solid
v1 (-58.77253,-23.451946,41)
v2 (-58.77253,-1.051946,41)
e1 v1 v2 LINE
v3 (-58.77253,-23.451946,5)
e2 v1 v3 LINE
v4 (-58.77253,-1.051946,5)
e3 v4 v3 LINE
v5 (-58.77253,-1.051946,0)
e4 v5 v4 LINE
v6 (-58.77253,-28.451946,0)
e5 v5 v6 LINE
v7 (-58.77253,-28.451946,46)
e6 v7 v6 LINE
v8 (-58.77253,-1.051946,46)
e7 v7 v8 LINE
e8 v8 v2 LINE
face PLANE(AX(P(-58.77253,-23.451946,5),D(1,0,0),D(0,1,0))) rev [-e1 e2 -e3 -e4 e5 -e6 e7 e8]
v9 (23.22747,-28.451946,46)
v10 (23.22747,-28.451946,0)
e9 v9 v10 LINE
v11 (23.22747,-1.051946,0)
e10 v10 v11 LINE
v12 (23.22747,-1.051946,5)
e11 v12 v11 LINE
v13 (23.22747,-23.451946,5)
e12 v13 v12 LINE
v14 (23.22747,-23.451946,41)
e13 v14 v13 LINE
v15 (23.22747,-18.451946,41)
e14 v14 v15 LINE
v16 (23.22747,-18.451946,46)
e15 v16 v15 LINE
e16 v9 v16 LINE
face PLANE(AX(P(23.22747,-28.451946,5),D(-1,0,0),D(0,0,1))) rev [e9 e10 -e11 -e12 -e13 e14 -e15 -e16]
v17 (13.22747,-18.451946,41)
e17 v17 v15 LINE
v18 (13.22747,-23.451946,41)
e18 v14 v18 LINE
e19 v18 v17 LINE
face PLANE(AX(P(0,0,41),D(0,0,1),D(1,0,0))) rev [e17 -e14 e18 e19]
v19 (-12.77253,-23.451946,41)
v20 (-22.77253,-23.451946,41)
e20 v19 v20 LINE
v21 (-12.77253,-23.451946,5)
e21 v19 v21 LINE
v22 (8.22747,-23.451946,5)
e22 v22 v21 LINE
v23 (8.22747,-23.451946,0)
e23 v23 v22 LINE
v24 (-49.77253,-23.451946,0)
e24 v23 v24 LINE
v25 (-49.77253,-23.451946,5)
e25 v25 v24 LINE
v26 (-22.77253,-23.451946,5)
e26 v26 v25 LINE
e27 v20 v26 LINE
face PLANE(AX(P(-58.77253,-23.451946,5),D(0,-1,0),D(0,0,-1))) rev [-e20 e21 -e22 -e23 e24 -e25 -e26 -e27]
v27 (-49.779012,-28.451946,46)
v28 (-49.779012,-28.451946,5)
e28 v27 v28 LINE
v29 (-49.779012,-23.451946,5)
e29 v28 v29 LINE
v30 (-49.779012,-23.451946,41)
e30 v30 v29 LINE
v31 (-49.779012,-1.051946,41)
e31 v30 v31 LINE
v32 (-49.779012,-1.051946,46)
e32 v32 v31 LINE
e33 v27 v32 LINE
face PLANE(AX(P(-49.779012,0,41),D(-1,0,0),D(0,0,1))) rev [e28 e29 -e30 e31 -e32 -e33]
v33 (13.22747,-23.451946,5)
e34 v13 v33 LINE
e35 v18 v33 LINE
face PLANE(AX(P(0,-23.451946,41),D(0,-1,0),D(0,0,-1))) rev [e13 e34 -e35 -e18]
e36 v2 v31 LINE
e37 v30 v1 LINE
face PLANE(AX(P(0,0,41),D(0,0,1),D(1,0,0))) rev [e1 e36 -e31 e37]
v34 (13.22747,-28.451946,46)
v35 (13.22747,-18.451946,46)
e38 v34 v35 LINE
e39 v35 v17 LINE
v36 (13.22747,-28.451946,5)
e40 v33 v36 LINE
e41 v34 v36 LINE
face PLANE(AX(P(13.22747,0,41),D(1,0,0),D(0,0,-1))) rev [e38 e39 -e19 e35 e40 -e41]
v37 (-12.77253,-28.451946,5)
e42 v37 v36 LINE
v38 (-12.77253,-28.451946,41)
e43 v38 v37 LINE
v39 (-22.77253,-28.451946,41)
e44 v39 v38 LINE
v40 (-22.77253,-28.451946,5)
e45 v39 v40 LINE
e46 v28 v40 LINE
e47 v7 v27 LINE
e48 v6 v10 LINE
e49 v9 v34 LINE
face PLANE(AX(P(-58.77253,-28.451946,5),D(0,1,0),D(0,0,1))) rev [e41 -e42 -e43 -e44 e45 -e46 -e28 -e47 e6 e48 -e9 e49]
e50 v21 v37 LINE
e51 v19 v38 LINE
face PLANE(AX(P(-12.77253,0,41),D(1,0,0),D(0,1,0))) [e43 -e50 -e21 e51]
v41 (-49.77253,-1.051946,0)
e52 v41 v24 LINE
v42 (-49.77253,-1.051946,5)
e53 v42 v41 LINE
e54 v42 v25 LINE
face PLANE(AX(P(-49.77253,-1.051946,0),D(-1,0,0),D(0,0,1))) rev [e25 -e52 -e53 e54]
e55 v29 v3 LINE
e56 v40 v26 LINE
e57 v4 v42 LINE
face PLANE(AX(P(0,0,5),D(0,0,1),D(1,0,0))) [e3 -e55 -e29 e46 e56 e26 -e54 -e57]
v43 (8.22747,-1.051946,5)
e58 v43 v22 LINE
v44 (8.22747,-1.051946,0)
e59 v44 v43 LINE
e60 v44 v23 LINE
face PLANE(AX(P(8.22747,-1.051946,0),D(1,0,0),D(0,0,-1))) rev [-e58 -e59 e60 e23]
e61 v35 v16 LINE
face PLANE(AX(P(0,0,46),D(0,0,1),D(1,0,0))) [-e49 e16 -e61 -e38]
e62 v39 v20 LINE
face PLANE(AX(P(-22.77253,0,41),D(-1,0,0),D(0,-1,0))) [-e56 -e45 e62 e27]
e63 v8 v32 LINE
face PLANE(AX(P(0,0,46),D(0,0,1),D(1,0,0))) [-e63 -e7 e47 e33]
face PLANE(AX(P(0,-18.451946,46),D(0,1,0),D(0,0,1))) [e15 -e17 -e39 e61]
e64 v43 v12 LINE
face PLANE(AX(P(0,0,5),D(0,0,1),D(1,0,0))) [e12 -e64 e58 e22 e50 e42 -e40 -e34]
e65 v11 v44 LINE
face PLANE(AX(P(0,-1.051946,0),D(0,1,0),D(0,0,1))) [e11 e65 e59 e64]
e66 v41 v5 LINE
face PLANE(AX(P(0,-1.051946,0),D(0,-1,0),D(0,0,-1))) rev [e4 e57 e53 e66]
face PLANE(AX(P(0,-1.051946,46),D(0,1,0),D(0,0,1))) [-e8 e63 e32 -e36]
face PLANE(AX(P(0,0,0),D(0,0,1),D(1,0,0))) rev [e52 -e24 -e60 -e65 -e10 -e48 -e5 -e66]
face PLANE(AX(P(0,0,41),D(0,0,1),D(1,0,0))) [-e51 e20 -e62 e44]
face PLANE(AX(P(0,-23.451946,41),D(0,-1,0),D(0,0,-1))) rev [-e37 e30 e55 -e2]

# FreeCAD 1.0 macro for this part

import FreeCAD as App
import Part
import Sketcher
from FreeCAD import Vector
Q = App.Units.Quantity


def add_polygon(sketch, points):
    """Adds a closed chain of lines whose ends are joined by coincident constraints."""
    first, n = sketch.GeometryCount, len(points)
    for a, b in zip(points, points[1:] + points[:1]):
        sketch.addGeometry(Part.LineSegment(App.Vector(*a, 0), App.Vector(*b, 0)), False)
    for i in range(n):
        sketch.addConstraint(Sketcher.Constraint("Coincident", first + i, 2, first + (i + 1) % n, 1))

doc = App.newDocument("Part")
body = doc.addObject("PartDesign::Body", "Body")

# Sketch on XY plane
sketch1 = body.newObject("Sketcher::SketchObject", "Sketch")
sketch1.AttachmentSupport = (doc.getObject("XY_Plane"), [""])
sketch1.MapMode = "FlatFace"
add_polygon(sketch1, [(-59, -23), (-59, -28), (23, -28), (23, -23)])  # lines 0-3
sketch1.addConstraint(Sketcher.Constraint("Vertical", 0))
sketch1.addConstraint(Sketcher.Constraint("Horizontal", 1))
sketch1.addConstraint(Sketcher.Constraint("Vertical", 2))
sketch1.addConstraint(Sketcher.Constraint("Horizontal", 3))
sketch1.addConstraint(Sketcher.Constraint("DistanceX", 1, 1, 1, 2, Q("82 mm")))
sketch1.addConstraint(Sketcher.Constraint("DistanceY", 0, 2, 0, 1, Q("5 mm")))
sketch1.addConstraint(Sketcher.Constraint("DistanceX", 0, 2, -1, 1, Q("58.77253 mm")))
sketch1.addConstraint(Sketcher.Constraint("DistanceY", 0, 2, -1, 1, Q("28.451946 mm")))
pad1 = body.newObject("PartDesign::Pad", "Pad")
pad1.Profile = sketch1
pad1.Length = 5

# Sketch on XZ plane
sketch2 = body.newObject("Sketcher::SketchObject", "Sketch001")
sketch2.AttachmentSupport = (doc.getObject("XZ_Plane"), [""])
sketch2.MapMode = "FlatFace"
sketch2.AttachmentOffset = App.Placement(Vector(0, 0, 23.451946), App.Rotation())
add_polygon(sketch2, [(8, 0), (8, 5), (23, 5), (23, 0)])  # lines 0-3
add_polygon(sketch2, [(-59, 0), (-59, 5), (-50, 5), (-50, 0)])  # lines 4-7
sketch2.addConstraint(Sketcher.Constraint("Vertical", 0))
sketch2.addConstraint(Sketcher.Constraint("Horizontal", 1))
sketch2.addConstraint(Sketcher.Constraint("Vertical", 2))
sketch2.addConstraint(Sketcher.Constraint("Horizontal", 3))
sketch2.addConstraint(Sketcher.Constraint("Vertical", 4))
sketch2.addConstraint(Sketcher.Constraint("Horizontal", 5))
sketch2.addConstraint(Sketcher.Constraint("Vertical", 6))
sketch2.addConstraint(Sketcher.Constraint("Horizontal", 7))
sketch2.addConstraint(Sketcher.Constraint("PointOnObject", 2, 2, -1))
sketch2.addConstraint(Sketcher.Constraint("PointOnObject", 6, 2, -1))
sketch2.addConstraint(Sketcher.Constraint("Horizontal", 1, 2, 4, 2))
sketch2.addConstraint(Sketcher.Constraint("DistanceX", 1, 1, 1, 2, Q("15 mm")))
sketch2.addConstraint(Sketcher.Constraint("DistanceX", 5, 1, 5, 2, Q("9 mm")))
sketch2.addConstraint(Sketcher.Constraint("DistanceY", 0, 1, 0, 2, Q("5 mm")))
sketch2.addConstraint(Sketcher.Constraint("DistanceX", 4, 2, 0, 2, Q("67 mm")))
sketch2.addConstraint(Sketcher.Constraint("DistanceX", -1, 1, 0, 2, Q("8.22747 mm")))
pad2 = body.newObject("PartDesign::Pad", "Pad001")
pad2.Profile = sketch2
pad2.Length = 22.4
pad2.Reversed = True

# Sketch on XY plane
sketch3 = body.newObject("Sketcher::SketchObject", "Sketch002")
sketch3.AttachmentSupport = (doc.getObject("XY_Plane"), [""])
sketch3.MapMode = "FlatFace"
sketch3.AttachmentOffset = App.Placement(Vector(0, 0, 5), App.Rotation())
add_polygon(sketch3, [(-59, -23), (-59, -28), (-50, -28), (-50, -23)])  # lines 0-3
add_polygon(sketch3, [(-23, -23), (-23, -28), (-13, -28), (-13, -23)])  # lines 4-7
add_polygon(sketch3, [(13, -23), (13, -28), (23, -28), (23, -23)])  # lines 8-11
sketch3.addConstraint(Sketcher.Constraint("Vertical", 0))
sketch3.addConstraint(Sketcher.Constraint("Horizontal", 1))
sketch3.addConstraint(Sketcher.Constraint("Vertical", 2))
sketch3.addConstraint(Sketcher.Constraint("Horizontal", 3))
sketch3.addConstraint(Sketcher.Constraint("Vertical", 4))
sketch3.addConstraint(Sketcher.Constraint("Horizontal", 5))
sketch3.addConstraint(Sketcher.Constraint("Vertical", 6))
sketch3.addConstraint(Sketcher.Constraint("Horizontal", 7))
sketch3.addConstraint(Sketcher.Constraint("Vertical", 8))
sketch3.addConstraint(Sketcher.Constraint("Horizontal", 9))
sketch3.addConstraint(Sketcher.Constraint("Vertical", 10))
sketch3.addConstraint(Sketcher.Constraint("Horizontal", 11))
sketch3.addConstraint(Sketcher.Constraint("Horizontal", 1, 2, 4, 2))
sketch3.addConstraint(Sketcher.Constraint("Horizontal", 3, 2, 6, 2))
sketch3.addConstraint(Sketcher.Constraint("Horizontal", 5, 2, 8, 2))
sketch3.addConstraint(Sketcher.Constraint("Horizontal", 7, 2, 10, 2))
sketch3.addConstraint(Sketcher.Constraint("Equal", 7, 9))
sketch3.addConstraint(Sketcher.Constraint("DistanceX", 5, 1, 5, 2, Q("10 mm")))
sketch3.addConstraint(Sketcher.Constraint("DistanceY", 0, 2, 0, 1, Q("5 mm")))
sketch3.addConstraint(Sketcher.Constraint("DistanceX", 0, 2, 4, 2, Q("36 mm")))
sketch3.addConstraint(Sketcher.Constraint("DistanceX", 5, 2, 8, 2, Q("26 mm")))
sketch3.addConstraint(Sketcher.Constraint("DistanceX", 1, 1, 1, 2, Q("8.993518 mm")))
sketch3.addConstraint(Sketcher.Constraint("DistanceX", 0, 2, -1, 1, Q("58.77253 mm")))
sketch3.addConstraint(Sketcher.Constraint("DistanceY", 0, 2, -1, 1, Q("28.451946 mm")))
pad3 = body.newObject("PartDesign::Pad", "Pad002")
pad3.Profile = sketch3
pad3.Length = 36

# Sketch on XY plane
sketch4 = body.newObject("Sketcher::SketchObject", "Sketch003")
sketch4.AttachmentSupport = (doc.getObject("XY_Plane"), [""])
sketch4.MapMode = "FlatFace"
sketch4.AttachmentOffset = App.Placement(Vector(0, 0, 41), App.Rotation())
add_polygon(sketch4, [(-59, -1), (-59, -28), (-50, -28), (-50, -1)])  # lines 0-3
add_polygon(sketch4, [(13, -18), (13, -28), (23, -28), (23, -18)])  # lines 4-7
sketch4.addConstraint(Sketcher.Constraint("Vertical", 0))
sketch4.addConstraint(Sketcher.Constraint("Horizontal", 1))
sketch4.addConstraint(Sketcher.Constraint("Vertical", 2))
sketch4.addConstraint(Sketcher.Constraint("Horizontal", 3))
sketch4.addConstraint(Sketcher.Constraint("Vertical", 4))
sketch4.addConstraint(Sketcher.Constraint("Horizontal", 5))
sketch4.addConstraint(Sketcher.Constraint("Vertical", 6))
sketch4.addConstraint(Sketcher.Constraint("Horizontal", 7))
sketch4.addConstraint(Sketcher.Constraint("Horizontal", 1, 2, 4, 2))
sketch4.addConstraint(Sketcher.Constraint("Equal", 7, 4))
sketch4.addConstraint(Sketcher.Constraint("DistanceX", 5, 1, 5, 2, Q("10 mm")))
sketch4.addConstraint(Sketcher.Constraint("DistanceY", 0, 2, 0, 1, Q("27.4 mm")))
sketch4.addConstraint(Sketcher.Constraint("DistanceX", 0, 2, 4, 2, Q("72 mm")))
sketch4.addConstraint(Sketcher.Constraint("DistanceX", 1, 1, 1, 2, Q("8.993518 mm")))
sketch4.addConstraint(Sketcher.Constraint("DistanceX", 0, 2, -1, 1, Q("58.77253 mm")))
sketch4.addConstraint(Sketcher.Constraint("DistanceY", 0, 2, -1, 1, Q("28.451946 mm")))
pad4 = body.newObject("PartDesign::Pad", "Pad003")
pad4.Profile = sketch4
pad4.Length = 5

doc.recompute()
